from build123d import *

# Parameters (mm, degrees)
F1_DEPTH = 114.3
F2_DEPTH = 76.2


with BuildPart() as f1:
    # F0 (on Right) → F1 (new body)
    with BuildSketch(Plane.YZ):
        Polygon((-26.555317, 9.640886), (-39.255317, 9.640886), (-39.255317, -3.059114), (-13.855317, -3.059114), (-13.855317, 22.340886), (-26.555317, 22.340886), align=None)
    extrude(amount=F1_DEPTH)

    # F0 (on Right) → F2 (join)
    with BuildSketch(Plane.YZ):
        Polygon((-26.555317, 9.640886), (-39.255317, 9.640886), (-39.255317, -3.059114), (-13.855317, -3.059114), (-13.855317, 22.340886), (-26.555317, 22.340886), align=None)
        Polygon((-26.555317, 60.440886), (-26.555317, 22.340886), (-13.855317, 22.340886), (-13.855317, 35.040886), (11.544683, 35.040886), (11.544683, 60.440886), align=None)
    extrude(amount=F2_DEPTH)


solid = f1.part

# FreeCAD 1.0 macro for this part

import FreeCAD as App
import Part
import Sketcher
from FreeCAD import Vector
Q = App.Units.Quantity


def add_polygon(sketch, points):
    """Adds a closed chain of lines whose ends are joined by coincident constraints."""
    first, n = sketch.GeometryCount, len(points)
    for a, b in zip(points, points[1:] + points[:1]):
        sketch.addGeometry(Part.LineSegment(App.Vector(*a, 0), App.Vector(*b, 0)), False)
    for i in range(n):
        sketch.addConstraint(Sketcher.Constraint("Coincident", first + i, 2, first + (i + 1) % n, 1))

doc = App.newDocument("Part")
params = doc.addObject("Spreadsheet::Sheet", "Params")
for row, (alias, value) in enumerate([
    ("sketch1_width", "1 in"),
    ("pad1_length", "4.5 in"),
    ("sketch2_width", "1 in"),
    ("sketch2_height", "2 in"),
    ("pad2_length", "3 in"),
], start=1):
    params.set(f"A{row}", alias)
    params.set(f"B{row}", "=" + value)
    params.setAlias(f"B{row}", alias)

body = doc.addObject("PartDesign::Body", "Body")

# Sketch on YZ plane
sketch1 = body.newObject("Sketcher::SketchObject", "Sketch")
sketch1.AttachmentSupport = (doc.getObject("YZ_Plane"), [""])
sketch1.MapMode = "FlatFace"
add_polygon(sketch1, [(-26.555317, 9.640886), (-39.255317, 9.640886), (-39.255317, -3.059114), (-13.855317, -3.059114), (-13.855317, 22.340886), (-26.555317, 22.340886)])  # lines 0-5
sketch1.addConstraint([
    Sketcher.Constraint("Horizontal", 0),
    Sketcher.Constraint("Vertical", 1),
    Sketcher.Constraint("Horizontal", 2),
    Sketcher.Constraint("Vertical", 3),
    Sketcher.Constraint("Horizontal", 4),
    Sketcher.Constraint("Vertical", 5),
    Sketcher.Constraint("Equal", 0, 4),
    Sketcher.Constraint("Equal", 4, 1),
    Sketcher.Constraint("Equal", 2, 3),
    Sketcher.Constraint("DistanceX", 2, 1, 2, 2, Q("1 in")),
    Sketcher.Constraint("DistanceX", 0, 2, -1, 1, 39.255317),
    Sketcher.Constraint("DistanceY", -1, 1, 0, 2, 9.640886),
])
sketch1.setExpression("Constraints[15]", "Params.sketch1_width")
pad1 = body.newObject("PartDesign::Pad", "Pad")
pad1.Profile = sketch1
pad1.setExpression("Length", "Params.pad1_length")

# Sketch on YZ plane
sketch2 = body.newObject("Sketcher::SketchObject", "Sketch001")
sketch2.AttachmentSupport = (doc.getObject("YZ_Plane"), [""])
sketch2.MapMode = "FlatFace"
add_polygon(sketch2, [(-26.555317, 9.640886), (-39.255317, 9.640886), (-39.255317, -3.059114), (-13.855317, -3.059114), (-13.855317, 35.040886), (11.544683, 35.040886), (11.544683, 60.440886), (-26.555317, 60.440886)])  # lines 0-7
sketch2.addConstraint([
    Sketcher.Constraint("Horizontal", 0),
    Sketcher.Constraint("Vertical", 1),
    Sketcher.Constraint("Horizontal", 2),
    Sketcher.Constraint("Vertical", 3),
    Sketcher.Constraint("Horizontal", 4),
    Sketcher.Constraint("Vertical", 5),
    Sketcher.Constraint("Horizontal", 6),
    Sketcher.Constraint("Vertical", 7),
    Sketcher.Constraint("Equal", 2, 4),
    Sketcher.Constraint("Equal", 0, 1),
    Sketcher.Constraint("Equal", 6, 3),
    Sketcher.Constraint("Equal", 4, 5),
    Sketcher.Constraint("DistanceX", 2, 1, 2, 2, Q("1 in")),
    Sketcher.Constraint("DistanceY", 7, 2, 7, 1, Q("2 in")),
    Sketcher.Constraint("DistanceX", 0, 2, -1, 1, 39.255317),
    Sketcher.Constraint("DistanceY", -1, 1, 0, 2, 9.640886),
])
sketch2.setExpression("Constraints[20]", "Params.sketch2_width")
sketch2.setExpression("Constraints[21]", "Params.sketch2_height")
pad2 = body.newObject("PartDesign::Pad", "Pad001")
pad2.Profile = sketch2
pad2.setExpression("Length", "Params.pad2_length")

doc.recompute()
